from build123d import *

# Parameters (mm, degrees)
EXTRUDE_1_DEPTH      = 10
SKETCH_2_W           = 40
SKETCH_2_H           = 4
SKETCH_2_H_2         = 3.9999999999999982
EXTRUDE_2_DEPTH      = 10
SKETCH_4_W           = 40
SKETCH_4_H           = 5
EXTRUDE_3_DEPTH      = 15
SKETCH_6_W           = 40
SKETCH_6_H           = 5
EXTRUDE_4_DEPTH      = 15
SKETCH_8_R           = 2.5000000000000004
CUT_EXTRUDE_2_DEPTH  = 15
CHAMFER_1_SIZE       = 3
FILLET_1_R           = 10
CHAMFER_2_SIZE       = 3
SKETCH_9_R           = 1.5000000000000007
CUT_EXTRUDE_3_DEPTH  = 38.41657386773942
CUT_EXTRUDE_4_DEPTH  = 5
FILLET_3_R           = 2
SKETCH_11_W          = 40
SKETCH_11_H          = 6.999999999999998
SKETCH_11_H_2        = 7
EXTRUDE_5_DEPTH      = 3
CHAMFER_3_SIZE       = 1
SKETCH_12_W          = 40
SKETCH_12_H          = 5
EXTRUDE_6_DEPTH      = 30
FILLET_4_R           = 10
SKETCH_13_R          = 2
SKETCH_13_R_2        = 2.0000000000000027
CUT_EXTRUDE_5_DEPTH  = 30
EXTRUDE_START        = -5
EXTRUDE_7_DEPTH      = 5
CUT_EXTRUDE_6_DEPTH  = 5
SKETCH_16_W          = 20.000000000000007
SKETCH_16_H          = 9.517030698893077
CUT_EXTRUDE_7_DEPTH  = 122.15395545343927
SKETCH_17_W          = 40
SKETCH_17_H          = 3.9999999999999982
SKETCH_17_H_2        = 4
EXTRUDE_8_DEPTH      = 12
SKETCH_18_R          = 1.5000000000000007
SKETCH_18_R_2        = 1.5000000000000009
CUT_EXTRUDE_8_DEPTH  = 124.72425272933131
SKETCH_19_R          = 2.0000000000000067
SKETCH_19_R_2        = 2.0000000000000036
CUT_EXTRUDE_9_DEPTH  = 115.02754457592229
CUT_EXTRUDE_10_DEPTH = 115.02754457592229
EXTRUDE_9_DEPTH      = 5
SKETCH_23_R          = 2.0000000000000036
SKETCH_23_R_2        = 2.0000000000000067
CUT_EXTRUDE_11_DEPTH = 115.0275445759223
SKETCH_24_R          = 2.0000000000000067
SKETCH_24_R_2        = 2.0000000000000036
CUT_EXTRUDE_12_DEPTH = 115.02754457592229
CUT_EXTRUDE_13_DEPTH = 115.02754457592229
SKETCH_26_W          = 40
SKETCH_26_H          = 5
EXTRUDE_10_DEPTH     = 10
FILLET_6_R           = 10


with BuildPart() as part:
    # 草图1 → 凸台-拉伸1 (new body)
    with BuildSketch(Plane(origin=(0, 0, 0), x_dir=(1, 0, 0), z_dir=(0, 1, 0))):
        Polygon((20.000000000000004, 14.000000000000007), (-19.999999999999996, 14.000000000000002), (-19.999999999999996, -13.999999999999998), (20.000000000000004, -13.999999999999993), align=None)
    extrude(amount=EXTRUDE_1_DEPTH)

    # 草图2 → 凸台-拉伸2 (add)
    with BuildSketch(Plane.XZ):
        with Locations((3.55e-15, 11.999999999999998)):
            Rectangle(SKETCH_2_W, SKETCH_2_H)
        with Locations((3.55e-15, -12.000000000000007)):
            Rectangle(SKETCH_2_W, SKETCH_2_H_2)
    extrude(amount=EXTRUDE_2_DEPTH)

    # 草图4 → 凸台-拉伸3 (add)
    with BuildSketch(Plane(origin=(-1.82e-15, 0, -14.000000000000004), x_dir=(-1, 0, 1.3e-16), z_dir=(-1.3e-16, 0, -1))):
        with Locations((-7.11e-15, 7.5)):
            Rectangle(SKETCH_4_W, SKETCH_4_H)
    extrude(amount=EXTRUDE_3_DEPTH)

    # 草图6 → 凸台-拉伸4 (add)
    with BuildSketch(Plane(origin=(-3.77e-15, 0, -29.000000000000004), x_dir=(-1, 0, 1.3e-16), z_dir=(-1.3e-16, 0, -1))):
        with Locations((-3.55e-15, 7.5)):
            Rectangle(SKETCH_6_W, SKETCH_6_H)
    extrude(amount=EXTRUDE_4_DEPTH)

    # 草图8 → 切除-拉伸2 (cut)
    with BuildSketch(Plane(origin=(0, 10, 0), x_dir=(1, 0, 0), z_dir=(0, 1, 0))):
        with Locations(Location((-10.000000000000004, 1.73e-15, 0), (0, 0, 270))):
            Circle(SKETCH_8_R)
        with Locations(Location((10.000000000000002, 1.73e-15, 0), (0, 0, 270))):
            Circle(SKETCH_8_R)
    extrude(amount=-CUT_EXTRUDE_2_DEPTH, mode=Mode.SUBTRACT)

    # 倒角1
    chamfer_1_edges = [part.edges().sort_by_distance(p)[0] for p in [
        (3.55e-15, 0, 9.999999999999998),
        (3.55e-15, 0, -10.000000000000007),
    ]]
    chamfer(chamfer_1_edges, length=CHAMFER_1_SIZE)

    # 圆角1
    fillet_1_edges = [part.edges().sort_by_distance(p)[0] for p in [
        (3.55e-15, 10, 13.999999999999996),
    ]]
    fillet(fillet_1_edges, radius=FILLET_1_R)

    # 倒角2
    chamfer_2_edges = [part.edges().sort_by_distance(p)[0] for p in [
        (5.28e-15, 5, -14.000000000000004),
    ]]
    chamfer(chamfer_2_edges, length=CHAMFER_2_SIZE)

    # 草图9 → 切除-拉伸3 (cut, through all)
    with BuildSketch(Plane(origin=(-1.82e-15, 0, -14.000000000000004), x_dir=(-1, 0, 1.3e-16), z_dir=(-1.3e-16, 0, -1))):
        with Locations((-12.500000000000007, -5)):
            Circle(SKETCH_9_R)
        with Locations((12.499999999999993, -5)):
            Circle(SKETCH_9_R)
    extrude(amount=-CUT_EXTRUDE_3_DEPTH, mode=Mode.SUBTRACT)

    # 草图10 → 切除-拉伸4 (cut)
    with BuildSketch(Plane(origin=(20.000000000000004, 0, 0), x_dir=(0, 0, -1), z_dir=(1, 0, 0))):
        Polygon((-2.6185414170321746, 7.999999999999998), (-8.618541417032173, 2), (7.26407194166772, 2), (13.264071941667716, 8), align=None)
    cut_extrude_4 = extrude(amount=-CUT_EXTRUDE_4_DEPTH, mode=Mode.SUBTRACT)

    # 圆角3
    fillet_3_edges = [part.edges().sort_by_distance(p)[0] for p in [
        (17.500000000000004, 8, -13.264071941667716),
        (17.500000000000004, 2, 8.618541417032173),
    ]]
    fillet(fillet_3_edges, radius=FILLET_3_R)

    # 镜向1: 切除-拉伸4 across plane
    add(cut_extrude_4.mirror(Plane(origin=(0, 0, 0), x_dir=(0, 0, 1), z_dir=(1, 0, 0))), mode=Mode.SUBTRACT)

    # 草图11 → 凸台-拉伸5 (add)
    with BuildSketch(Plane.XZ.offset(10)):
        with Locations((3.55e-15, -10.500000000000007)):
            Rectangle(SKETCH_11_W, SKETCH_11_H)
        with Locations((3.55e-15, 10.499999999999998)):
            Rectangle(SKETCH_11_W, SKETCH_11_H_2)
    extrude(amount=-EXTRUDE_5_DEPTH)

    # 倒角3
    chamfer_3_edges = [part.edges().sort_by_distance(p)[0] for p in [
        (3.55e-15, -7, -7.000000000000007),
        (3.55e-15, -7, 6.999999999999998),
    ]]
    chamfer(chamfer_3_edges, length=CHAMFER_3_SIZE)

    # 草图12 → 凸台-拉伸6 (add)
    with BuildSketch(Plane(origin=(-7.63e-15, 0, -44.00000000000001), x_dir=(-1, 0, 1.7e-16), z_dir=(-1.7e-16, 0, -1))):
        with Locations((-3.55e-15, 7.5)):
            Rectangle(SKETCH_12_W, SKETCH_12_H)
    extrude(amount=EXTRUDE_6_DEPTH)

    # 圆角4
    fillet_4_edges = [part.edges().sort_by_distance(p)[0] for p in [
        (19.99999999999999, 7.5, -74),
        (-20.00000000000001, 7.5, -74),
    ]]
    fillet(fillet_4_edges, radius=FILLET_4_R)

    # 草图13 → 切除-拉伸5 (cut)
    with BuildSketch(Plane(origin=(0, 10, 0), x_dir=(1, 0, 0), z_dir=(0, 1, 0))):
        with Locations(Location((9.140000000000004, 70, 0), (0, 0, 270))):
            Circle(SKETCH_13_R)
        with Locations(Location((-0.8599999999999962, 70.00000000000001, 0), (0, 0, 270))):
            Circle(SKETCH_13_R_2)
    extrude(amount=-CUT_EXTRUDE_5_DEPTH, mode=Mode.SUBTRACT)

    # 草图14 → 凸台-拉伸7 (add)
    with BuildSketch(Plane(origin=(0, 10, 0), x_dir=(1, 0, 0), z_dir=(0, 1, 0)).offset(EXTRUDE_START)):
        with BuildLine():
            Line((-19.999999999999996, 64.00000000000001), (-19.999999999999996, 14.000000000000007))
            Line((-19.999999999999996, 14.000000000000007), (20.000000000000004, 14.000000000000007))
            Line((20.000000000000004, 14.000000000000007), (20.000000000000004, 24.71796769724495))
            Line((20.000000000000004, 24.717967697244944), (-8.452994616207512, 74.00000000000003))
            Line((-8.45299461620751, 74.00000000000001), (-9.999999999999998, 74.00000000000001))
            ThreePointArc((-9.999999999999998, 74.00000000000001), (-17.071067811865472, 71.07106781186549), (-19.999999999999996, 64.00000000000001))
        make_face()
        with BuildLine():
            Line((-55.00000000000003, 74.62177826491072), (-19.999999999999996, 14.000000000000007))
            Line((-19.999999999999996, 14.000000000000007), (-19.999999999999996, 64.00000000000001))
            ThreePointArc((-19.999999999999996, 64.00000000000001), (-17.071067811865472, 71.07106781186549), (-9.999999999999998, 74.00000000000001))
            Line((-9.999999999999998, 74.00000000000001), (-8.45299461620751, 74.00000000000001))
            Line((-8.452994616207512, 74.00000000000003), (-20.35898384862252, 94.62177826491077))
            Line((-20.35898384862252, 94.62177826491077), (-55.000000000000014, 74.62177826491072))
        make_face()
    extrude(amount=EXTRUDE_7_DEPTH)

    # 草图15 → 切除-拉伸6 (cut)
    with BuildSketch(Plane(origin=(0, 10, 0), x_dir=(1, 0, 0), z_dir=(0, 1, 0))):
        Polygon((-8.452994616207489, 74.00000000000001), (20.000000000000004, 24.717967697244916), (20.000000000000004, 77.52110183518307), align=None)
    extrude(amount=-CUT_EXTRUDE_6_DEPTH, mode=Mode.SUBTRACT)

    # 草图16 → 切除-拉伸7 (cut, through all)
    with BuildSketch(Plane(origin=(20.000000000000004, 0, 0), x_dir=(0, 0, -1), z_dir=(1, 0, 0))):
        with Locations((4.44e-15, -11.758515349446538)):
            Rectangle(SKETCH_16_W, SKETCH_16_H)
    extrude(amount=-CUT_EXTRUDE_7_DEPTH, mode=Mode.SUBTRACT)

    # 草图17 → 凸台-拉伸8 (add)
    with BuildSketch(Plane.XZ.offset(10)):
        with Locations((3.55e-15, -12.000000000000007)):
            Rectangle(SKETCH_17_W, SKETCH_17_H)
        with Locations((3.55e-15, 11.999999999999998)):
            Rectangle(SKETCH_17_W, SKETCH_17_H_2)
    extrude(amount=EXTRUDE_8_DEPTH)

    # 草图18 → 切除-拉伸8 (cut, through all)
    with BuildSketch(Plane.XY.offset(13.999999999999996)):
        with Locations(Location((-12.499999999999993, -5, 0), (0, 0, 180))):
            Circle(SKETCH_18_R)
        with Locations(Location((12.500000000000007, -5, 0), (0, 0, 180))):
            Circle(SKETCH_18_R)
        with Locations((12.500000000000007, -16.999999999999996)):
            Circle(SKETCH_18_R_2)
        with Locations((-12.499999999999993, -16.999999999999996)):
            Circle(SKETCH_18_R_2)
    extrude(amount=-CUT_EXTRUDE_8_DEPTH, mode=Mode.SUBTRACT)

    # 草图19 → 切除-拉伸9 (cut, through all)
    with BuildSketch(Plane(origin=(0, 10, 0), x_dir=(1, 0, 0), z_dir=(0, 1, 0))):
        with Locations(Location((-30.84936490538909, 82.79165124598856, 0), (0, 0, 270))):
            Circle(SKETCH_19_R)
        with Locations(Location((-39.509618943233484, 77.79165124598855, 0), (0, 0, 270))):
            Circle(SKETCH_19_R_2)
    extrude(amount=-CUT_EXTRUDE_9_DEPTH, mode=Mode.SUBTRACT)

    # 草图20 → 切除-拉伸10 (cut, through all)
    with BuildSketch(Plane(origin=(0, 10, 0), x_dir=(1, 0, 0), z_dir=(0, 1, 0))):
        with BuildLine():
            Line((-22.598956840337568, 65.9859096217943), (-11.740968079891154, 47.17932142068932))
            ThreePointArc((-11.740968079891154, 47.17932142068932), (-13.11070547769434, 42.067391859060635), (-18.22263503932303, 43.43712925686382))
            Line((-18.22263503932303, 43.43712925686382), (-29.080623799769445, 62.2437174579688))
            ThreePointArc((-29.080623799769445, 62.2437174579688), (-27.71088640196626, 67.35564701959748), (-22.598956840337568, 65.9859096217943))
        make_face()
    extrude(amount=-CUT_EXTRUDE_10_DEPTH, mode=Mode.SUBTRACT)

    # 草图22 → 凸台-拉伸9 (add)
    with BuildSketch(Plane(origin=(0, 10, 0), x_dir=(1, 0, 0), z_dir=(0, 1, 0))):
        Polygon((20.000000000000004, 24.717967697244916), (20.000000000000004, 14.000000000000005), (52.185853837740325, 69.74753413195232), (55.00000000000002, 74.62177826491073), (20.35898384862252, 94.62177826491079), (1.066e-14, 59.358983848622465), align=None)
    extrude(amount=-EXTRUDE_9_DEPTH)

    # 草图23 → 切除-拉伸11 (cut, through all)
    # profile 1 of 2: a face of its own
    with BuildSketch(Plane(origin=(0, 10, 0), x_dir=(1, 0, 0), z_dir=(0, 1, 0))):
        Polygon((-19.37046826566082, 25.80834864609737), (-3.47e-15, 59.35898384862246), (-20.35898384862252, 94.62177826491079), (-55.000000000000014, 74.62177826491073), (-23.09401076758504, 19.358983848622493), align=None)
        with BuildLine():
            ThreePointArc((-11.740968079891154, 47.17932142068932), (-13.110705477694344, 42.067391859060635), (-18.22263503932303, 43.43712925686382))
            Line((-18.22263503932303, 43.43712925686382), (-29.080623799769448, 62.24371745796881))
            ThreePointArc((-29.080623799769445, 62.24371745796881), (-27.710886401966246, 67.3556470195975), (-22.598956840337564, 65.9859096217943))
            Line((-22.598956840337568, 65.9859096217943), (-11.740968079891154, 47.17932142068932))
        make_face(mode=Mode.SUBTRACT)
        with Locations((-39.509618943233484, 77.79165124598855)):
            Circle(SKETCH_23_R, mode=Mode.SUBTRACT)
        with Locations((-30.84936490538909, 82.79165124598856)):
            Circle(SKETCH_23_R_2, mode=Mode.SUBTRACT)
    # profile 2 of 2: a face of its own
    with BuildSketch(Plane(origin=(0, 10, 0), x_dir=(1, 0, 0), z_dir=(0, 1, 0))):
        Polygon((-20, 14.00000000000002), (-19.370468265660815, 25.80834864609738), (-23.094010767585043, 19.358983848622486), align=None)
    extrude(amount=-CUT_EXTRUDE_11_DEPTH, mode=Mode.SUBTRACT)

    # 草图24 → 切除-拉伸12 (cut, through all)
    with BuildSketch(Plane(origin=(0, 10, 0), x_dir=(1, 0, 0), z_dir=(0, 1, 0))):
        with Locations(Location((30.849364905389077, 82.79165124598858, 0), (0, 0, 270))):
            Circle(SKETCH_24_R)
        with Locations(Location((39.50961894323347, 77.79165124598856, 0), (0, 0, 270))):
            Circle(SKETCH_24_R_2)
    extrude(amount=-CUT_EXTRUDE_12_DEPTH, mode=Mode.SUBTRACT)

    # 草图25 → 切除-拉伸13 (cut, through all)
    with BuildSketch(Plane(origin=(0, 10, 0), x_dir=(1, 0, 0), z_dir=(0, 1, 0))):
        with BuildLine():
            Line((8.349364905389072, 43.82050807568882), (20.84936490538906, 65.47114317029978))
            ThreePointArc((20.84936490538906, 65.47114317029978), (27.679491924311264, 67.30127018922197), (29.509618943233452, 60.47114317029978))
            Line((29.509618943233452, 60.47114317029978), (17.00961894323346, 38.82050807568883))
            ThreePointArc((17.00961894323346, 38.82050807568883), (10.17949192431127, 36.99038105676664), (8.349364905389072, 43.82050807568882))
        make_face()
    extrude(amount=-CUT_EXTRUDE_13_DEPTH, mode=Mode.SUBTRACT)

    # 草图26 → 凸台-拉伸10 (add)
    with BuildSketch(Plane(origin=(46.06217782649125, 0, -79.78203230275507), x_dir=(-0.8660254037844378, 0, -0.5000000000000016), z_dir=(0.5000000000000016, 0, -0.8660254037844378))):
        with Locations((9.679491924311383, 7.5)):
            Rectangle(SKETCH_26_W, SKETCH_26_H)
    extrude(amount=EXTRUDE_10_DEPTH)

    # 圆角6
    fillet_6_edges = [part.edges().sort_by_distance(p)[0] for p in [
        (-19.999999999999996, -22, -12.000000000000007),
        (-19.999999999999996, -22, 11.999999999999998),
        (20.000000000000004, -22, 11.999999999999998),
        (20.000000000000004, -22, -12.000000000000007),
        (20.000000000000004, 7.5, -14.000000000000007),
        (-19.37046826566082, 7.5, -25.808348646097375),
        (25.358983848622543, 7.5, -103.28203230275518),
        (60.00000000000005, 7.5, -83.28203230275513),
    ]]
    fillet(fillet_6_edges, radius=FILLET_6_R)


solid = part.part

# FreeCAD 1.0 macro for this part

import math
import FreeCAD as App
import Part
import Sketcher

V = App.Vector
Q = App.Units.Quantity


def edges_at(feature, points):
    """Names of the edges that pass closest to the given points."""
    edges = feature.Shape.Edges
    near = lambda p: min(range(len(edges)), key=lambda i: edges[i].distToShape(Part.Vertex(*p))[0])
    return sorted({f"Edge{near(p) + 1}" for p in points})

doc = App.newDocument("Part")
body = doc.addObject("PartDesign::Body", "Body")

# Sketch on XZ plane
sketch1 = body.newObject("Sketcher::SketchObject", "Sketch")
sketch1.AttachmentSupport = (doc.getObject("XZ_Plane"), [""])
sketch1.MapMode = "FlatFace"
sketch1.addGeometry([
    Part.LineSegment(V(20, -14, 0), V(-20, -14, 0)),
    Part.LineSegment(V(-20, -14, 0), V(-20, 14, 0)),
    Part.LineSegment(V(-20, 14, 0), V(20, 14, 0)),
    Part.LineSegment(V(20, 14, 0), V(20, -14, 0)),
], False)
sketch1.addConstraint([
    Sketcher.Constraint("Coincident", 0, 2, 1, 1),
    Sketcher.Constraint("Coincident", 1, 2, 2, 1),
    Sketcher.Constraint("Coincident", 2, 2, 3, 1),
    Sketcher.Constraint("Coincident", 3, 2, 0, 1),
    Sketcher.Constraint("Horizontal", 0),
    Sketcher.Constraint("Vertical", 1),
    Sketcher.Constraint("Horizontal", 2),
    Sketcher.Constraint("Vertical", 3),
    Sketcher.Constraint("Symmetric", 0, 2, 2, 2, -1, 1),
    Sketcher.Constraint("DistanceX", 0, 2, 0, 1, 40.0),
    Sketcher.Constraint("DistanceY", 1, 1, 1, 2, 28.0),
])
pad1 = body.newObject("PartDesign::Pad", "Pad")
pad1.Profile = sketch1
pad1.Length = 10
pad1.Reversed = True

# Sketch on XZ plane
sketch2 = body.newObject("Sketcher::SketchObject", "Sketch001")
sketch2.AttachmentSupport = (doc.getObject("XZ_Plane"), [""])
sketch2.MapMode = "FlatFace"
sketch2.addGeometry([
    Part.LineSegment(V(-20, 14, 0), V(-20, 10, 0)),  # 0
    Part.LineSegment(V(-20, 10, 0), V(20, 10, 0)),  # 1
    Part.LineSegment(V(20, 10, 0), V(20, 14, 0)),  # 2
    Part.LineSegment(V(20, 14, 0), V(-20, 14, 0)),  # 3
    Part.LineSegment(V(-20, -10, 0), V(-20, -14, 0)),  # 4
    Part.LineSegment(V(-20, -14, 0), V(20, -14, 0)),  # 5
    Part.LineSegment(V(20, -14, 0), V(20, -10, 0)),  # 6
    Part.LineSegment(V(20, -10, 0), V(-20, -10, 0)),  # 7
], False)
sketch2.addConstraint([
    Sketcher.Constraint("Coincident", 0, 2, 1, 1),
    Sketcher.Constraint("Coincident", 1, 2, 2, 1),
    Sketcher.Constraint("Coincident", 2, 2, 3, 1),
    Sketcher.Constraint("Coincident", 3, 2, 0, 1),
    Sketcher.Constraint("Coincident", 4, 2, 5, 1),
    Sketcher.Constraint("Coincident", 5, 2, 6, 1),
    Sketcher.Constraint("Coincident", 6, 2, 7, 1),
    Sketcher.Constraint("Coincident", 7, 2, 4, 1),
    Sketcher.Constraint("Vertical", 0),
    Sketcher.Constraint("Horizontal", 1),
    Sketcher.Constraint("Vertical", 2),
    Sketcher.Constraint("Horizontal", 3),
    Sketcher.Constraint("Vertical", 4),
    Sketcher.Constraint("Horizontal", 5),
    Sketcher.Constraint("Vertical", 6),
    Sketcher.Constraint("Horizontal", 7),
    Sketcher.Constraint("Symmetric", 2, 2, 4, 2, -1, 1),
    Sketcher.Constraint("Symmetric", 0, 2, 6, 2, -1, 1),
    Sketcher.Constraint("Vertical", 3, 2, 4, 2),
    Sketcher.Constraint("DistanceX", 1, 1, 1, 2, 40.0),
    Sketcher.Constraint("DistanceY", 0, 2, 0, 1, 4.0),
    Sketcher.Constraint("DistanceY", -1, 1, 0, 2, 10.0),
])
pad2 = body.newObject("PartDesign::Pad", "Pad001")
pad2.Profile = sketch2
pad2.Length = 10

# Sketch on XY plane
sketch3 = body.newObject("Sketcher::SketchObject", "Sketch002")
sketch3.AttachmentSupport = (doc.getObject("XY_Plane"), [""])
sketch3.MapMode = "FlatFace"
sketch3.AttachmentOffset = App.Placement(V(0, 0, -14), App.Rotation())
sketch3.addGeometry([
    Part.LineSegment(V(20, 10, 0), V(20, 5, 0)),
    Part.LineSegment(V(20, 5, 0), V(-20, 5, 0)),
    Part.LineSegment(V(-20, 5, 0), V(-20, 10, 0)),
    Part.LineSegment(V(-20, 10, 0), V(20, 10, 0)),
], False)
sketch3.addConstraint([
    Sketcher.Constraint("Coincident", 0, 2, 1, 1),
    Sketcher.Constraint("Coincident", 1, 2, 2, 1),
    Sketcher.Constraint("Coincident", 2, 2, 3, 1),
    Sketcher.Constraint("Coincident", 3, 2, 0, 1),
    Sketcher.Constraint("Vertical", 0),
    Sketcher.Constraint("Horizontal", 1),
    Sketcher.Constraint("Vertical", 2),
    Sketcher.Constraint("Horizontal", 3),
    Sketcher.Constraint("DistanceX", 1, 2, 1, 1, 40.0),
    Sketcher.Constraint("DistanceY", 0, 2, 0, 1, 5.0),
    Sketcher.Constraint("DistanceX", -1, 1, 0, 2, 20.0),
    Sketcher.Constraint("DistanceY", -1, 1, 0, 2, 5.0),
])
pad3 = body.newObject("PartDesign::Pad", "Pad002")
pad3.Profile = sketch3
pad3.Length = 15
pad3.Reversed = True

# Sketch on XY plane
sketch4 = body.newObject("Sketcher::SketchObject", "Sketch003")
sketch4.AttachmentSupport = (doc.getObject("XY_Plane"), [""])
sketch4.MapMode = "FlatFace"
sketch4.AttachmentOffset = App.Placement(V(0, 0, -29), App.Rotation())
sketch4.addGeometry([
    Part.LineSegment(V(20, 10, 0), V(20, 5, 0)),
    Part.LineSegment(V(20, 5, 0), V(-20, 5, 0)),
    Part.LineSegment(V(-20, 5, 0), V(-20, 10, 0)),
    Part.LineSegment(V(-20, 10, 0), V(20, 10, 0)),
], False)
sketch4.addConstraint([
    Sketcher.Constraint("Coincident", 0, 2, 1, 1),
    Sketcher.Constraint("Coincident", 1, 2, 2, 1),
    Sketcher.Constraint("Coincident", 2, 2, 3, 1),
    Sketcher.Constraint("Coincident", 3, 2, 0, 1),
    Sketcher.Constraint("Vertical", 0),
    Sketcher.Constraint("Horizontal", 1),
    Sketcher.Constraint("Vertical", 2),
    Sketcher.Constraint("Horizontal", 3),
    Sketcher.Constraint("DistanceX", 1, 2, 1, 1, 40.0),
    Sketcher.Constraint("DistanceY", 0, 2, 0, 1, 5.0),
    Sketcher.Constraint("DistanceX", -1, 1, 0, 2, 20.0),
    Sketcher.Constraint("DistanceY", -1, 1, 0, 2, 5.0),
])
pad4 = body.newObject("PartDesign::Pad", "Pad003")
pad4.Profile = sketch4
pad4.Length = 15
pad4.Reversed = True

# Sketch on XZ plane
sketch5 = body.newObject("Sketcher::SketchObject", "Sketch004")
sketch5.AttachmentSupport = (doc.getObject("XZ_Plane"), [""])
sketch5.MapMode = "FlatFace"
sketch5.AttachmentOffset = App.Placement(V(0, 0, -10), App.Rotation())
sketch5.addGeometry([
    Part.Circle(V(-10, 0, 0), V(0, 0, 1), 2.5),
    Part.Circle(V(10, 0, 0), V(0, 0, 1), 2.5),
], False)
sketch5.addConstraint([
    Sketcher.Constraint("Equal", 0, 1),
    Sketcher.Constraint("Symmetric", 0, 3, 1, 3, -1, 1),
    Sketcher.Constraint("PointOnObject", 0, 3, -1),
    Sketcher.Constraint("Diameter", 0, 5.0),
    Sketcher.Constraint("DistanceX", 0, 3, -1, 1, 10.0),
])
pocket1 = body.newObject("PartDesign::Pocket", "Pocket")
pocket1.Profile = sketch5
pocket1.Length = 15
pocket1.Reversed = True
doc.recompute()

chamfer = body.newObject("PartDesign::Chamfer", "Chamfer")
chamfer.Base = (pocket1, edges_at(pocket1, [(0, 0, 10), (0, 0, -10)]))
chamfer.Size = 3
doc.recompute()

fillet = body.newObject("PartDesign::Fillet", "Fillet")
fillet.Base = (chamfer, edges_at(chamfer, [(0, 10, 14)]))
fillet.Radius = 10
doc.recompute()

chamfer2 = body.newObject("PartDesign::Chamfer", "Chamfer001")
chamfer2.Base = (fillet, edges_at(fillet, [(0, 5, -14)]))
chamfer2.Size = 3

# Sketch on XY plane
sketch6 = body.newObject("Sketcher::SketchObject", "Sketch005")
sketch6.AttachmentSupport = (doc.getObject("XY_Plane"), [""])
sketch6.MapMode = "FlatFace"
sketch6.AttachmentOffset = App.Placement(V(0, 0, -14), App.Rotation())
sketch6.addGeometry([
    Part.Circle(V(12.5, -5, 0), V(0, 0, 1), 1.5),
    Part.Circle(V(-12.5, -5, 0), V(0, 0, 1), 1.5),
], False)
sketch6.addConstraint([
    Sketcher.Constraint("Equal", 0, 1),
    Sketcher.Constraint("Symmetric", 0, 3, 1, 3, -2),
    Sketcher.Constraint("Diameter", 0, 3.0),
    Sketcher.Constraint("DistanceY", 0, 3, -1, 1, 5.0),
    Sketcher.Constraint("DistanceX", 1, 3, 0, 3, 25.0),
])
pocket2 = body.newObject("PartDesign::Pocket", "Pocket001")
pocket2.Profile = sketch6
pocket2.Type = "ThroughAll"
pocket2.Reversed = True

# Sketch on YZ plane
sketch7 = body.newObject("Sketcher::SketchObject", "Sketch006")
sketch7.AttachmentSupport = (doc.getObject("YZ_Plane"), [""])
sketch7.MapMode = "FlatFace"
sketch7.AttachmentOffset = App.Placement(V(0, 0, 20), App.Rotation())
sketch7.addGeometry([
    Part.LineSegment(V(8, 3, 0), V(2, 9, 0)),
    Part.LineSegment(V(2, 9, 0), V(2, -7, 0)),
    Part.LineSegment(V(2, -7, 0), V(8, -13, 0)),
    Part.LineSegment(V(8, -13, 0), V(8, 3, 0)),
], False)
sketch7.addConstraint([
    Sketcher.Constraint("Coincident", 0, 2, 1, 1),
    Sketcher.Constraint("Coincident", 1, 2, 2, 1),
    Sketcher.Constraint("Coincident", 2, 2, 3, 1),
    Sketcher.Constraint("Coincident", 3, 2, 0, 1),
    Sketcher.Constraint("Vertical", 1),
    Sketcher.Constraint("Vertical", 3),
    Sketcher.Constraint("Parallel", 0, 2),
    Sketcher.Constraint("Angle", 0, Q("135 deg")),
    Sketcher.Constraint("DistanceX", -1, 1, 0, 2, 2.0),
    Sketcher.Constraint("DistanceX", -1, 1, 2, 2, 8.0),
    Sketcher.Constraint("DistanceY", 1, 2, 1, 1, 15.882613),
    Sketcher.Constraint("DistanceY", -1, 1, 0, 2, 8.618541),
])
pocket3 = body.newObject("PartDesign::Pocket", "Pocket002")
pocket3.Profile = sketch7
pocket3.Length = 5
doc.recompute()

fillet2 = body.newObject("PartDesign::Fillet", "Fillet001")
fillet2.Base = (pocket3, edges_at(pocket3, [(17.5, 8, -13.264), (17.5, 2, 8.619)]))
fillet2.Radius = 2
doc.recompute()

mirrored = body.newObject("PartDesign::Mirrored", "Mirrored")
mirrored.Originals = [pocket3]
mirrored.MirrorPlane = (doc.getObject("YZ_Plane"), [""])
body.Tip = mirrored

# Sketch on XZ plane
sketch8 = body.newObject("Sketcher::SketchObject", "Sketch007")
sketch8.AttachmentSupport = (doc.getObject("XZ_Plane"), [""])
sketch8.MapMode = "FlatFace"
sketch8.AttachmentOffset = App.Placement(V(0, 0, 10), App.Rotation())
sketch8.addGeometry([
    Part.LineSegment(V(-20, -7, 0), V(-20, -14, 0)),  # 0
    Part.LineSegment(V(-20, -14, 0), V(20, -14, 0)),  # 1
    Part.LineSegment(V(20, -14, 0), V(20, -7, 0)),  # 2
    Part.LineSegment(V(20, -7, 0), V(-20, -7, 0)),  # 3
    Part.LineSegment(V(-20, 14, 0), V(-20, 7, 0)),  # 4
    Part.LineSegment(V(-20, 7, 0), V(20, 7, 0)),  # 5
    Part.LineSegment(V(20, 7, 0), V(20, 14, 0)),  # 6
    Part.LineSegment(V(20, 14, 0), V(-20, 14, 0)),  # 7
], False)
sketch8.addConstraint([
    Sketcher.Constraint("Coincident", 0, 2, 1, 1),
    Sketcher.Constraint("Coincident", 1, 2, 2, 1),
    Sketcher.Constraint("Coincident", 2, 2, 3, 1),
    Sketcher.Constraint("Coincident", 3, 2, 0, 1),
    Sketcher.Constraint("Coincident", 4, 2, 5, 1),
    Sketcher.Constraint("Coincident", 5, 2, 6, 1),
    Sketcher.Constraint("Coincident", 6, 2, 7, 1),
    Sketcher.Constraint("Coincident", 7, 2, 4, 1),
    Sketcher.Constraint("Vertical", 0),
    Sketcher.Constraint("Horizontal", 1),
    Sketcher.Constraint("Vertical", 2),
    Sketcher.Constraint("Horizontal", 3),
    Sketcher.Constraint("Vertical", 4),
    Sketcher.Constraint("Horizontal", 5),
    Sketcher.Constraint("Vertical", 6),
    Sketcher.Constraint("Horizontal", 7),
    Sketcher.Constraint("Symmetric", 2, 2, 4, 2, -1, 1),
    Sketcher.Constraint("Symmetric", 0, 2, 6, 2, -1, 1),
    Sketcher.Constraint("Vertical", 3, 2, 4, 2),
    Sketcher.Constraint("DistanceX", 1, 1, 1, 2, 40.0),
    Sketcher.Constraint("DistanceY", 0, 2, 0, 1, 7.0),
    Sketcher.Constraint("DistanceY", 0, 2, -1, 1, 14.0),
])
pad5 = body.newObject("PartDesign::Pad", "Pad004")
pad5.Profile = sketch8
pad5.Length = 3
pad5.Reversed = True
doc.recompute()

chamfer3 = body.newObject("PartDesign::Chamfer", "Chamfer002")
chamfer3.Base = (pad5, edges_at(pad5, [(0, -7, -7), (0, -7, 7)]))
chamfer3.Size = 1

# Sketch on XY plane
sketch9 = body.newObject("Sketcher::SketchObject", "Sketch008")
sketch9.AttachmentSupport = (doc.getObject("XY_Plane"), [""])
sketch9.MapMode = "FlatFace"
sketch9.AttachmentOffset = App.Placement(V(0, 0, -44), App.Rotation())
sketch9.addGeometry([
    Part.LineSegment(V(20, 10, 0), V(20, 5, 0)),
    Part.LineSegment(V(20, 5, 0), V(-20, 5, 0)),
    Part.LineSegment(V(-20, 5, 0), V(-20, 10, 0)),
    Part.LineSegment(V(-20, 10, 0), V(20, 10, 0)),
], False)
sketch9.addConstraint([
    Sketcher.Constraint("Coincident", 0, 2, 1, 1),
    Sketcher.Constraint("Coincident", 1, 2, 2, 1),
    Sketcher.Constraint("Coincident", 2, 2, 3, 1),
    Sketcher.Constraint("Coincident", 3, 2, 0, 1),
    Sketcher.Constraint("Vertical", 0),
    Sketcher.Constraint("Horizontal", 1),
    Sketcher.Constraint("Vertical", 2),
    Sketcher.Constraint("Horizontal", 3),
    Sketcher.Constraint("DistanceX", 1, 2, 1, 1, 40.0),
    Sketcher.Constraint("DistanceY", 0, 2, 0, 1, 5.0),
    Sketcher.Constraint("DistanceX", -1, 1, 0, 2, 20.0),
    Sketcher.Constraint("DistanceY", -1, 1, 0, 2, 5.0),
])
pad6 = body.newObject("PartDesign::Pad", "Pad005")
pad6.Profile = sketch9
pad6.Length = 30
pad6.Reversed = True
doc.recompute()

fillet3 = body.newObject("PartDesign::Fillet", "Fillet002")
fillet3.Base = (pad6, edges_at(pad6, [(20, 7.5, -74), (-20, 7.5, -74)]))
fillet3.Radius = 10

# Sketch on XZ plane
sketch10 = body.newObject("Sketcher::SketchObject", "Sketch009")
sketch10.AttachmentSupport = (doc.getObject("XZ_Plane"), [""])
sketch10.MapMode = "FlatFace"
sketch10.AttachmentOffset = App.Placement(V(0, 0, -10), App.Rotation())
sketch10.addGeometry([
    Part.Circle(V(9.1, -70, 0), V(0, 0, 1), 2),
    Part.Circle(V(-0.9, -70, 0), V(0, 0, 1), 2),
], False)
sketch10.addConstraint([
    Sketcher.Constraint("Equal", 0, 1),
    Sketcher.Constraint("Horizontal", 0, 3, 1, 3),
    Sketcher.Constraint("Diameter", 0, 4.0),
    Sketcher.Constraint("DistanceY", 0, 3, -1, 1, 70.0),
    Sketcher.Constraint("DistanceX", 1, 3, 0, 3, 10.0),
    Sketcher.Constraint("DistanceX", -1, 1, 0, 3, 9.14),
])
pocket4 = body.newObject("PartDesign::Pocket", "Pocket003")
pocket4.Profile = sketch10
pocket4.Length = 30
pocket4.Reversed = True

# Sketch on XZ plane
sketch11 = body.newObject("Sketcher::SketchObject", "Sketch010")
sketch11.AttachmentSupport = (doc.getObject("XZ_Plane"), [""])
sketch11.MapMode = "FlatFace"
sketch11.AttachmentOffset = App.Placement(V(0, 0, -5), App.Rotation())
sketch11.addGeometry([
    Part.LineSegment(V(-20, -14, 0), V(20, -14, 0)),  # 0
    Part.LineSegment(V(20, -14, 0), V(20, -25, 0)),  # 1
    Part.LineSegment(V(20, -25, 0), V(-20, -95, 0)),  # 2
    Part.LineSegment(V(-20, -95, 0), V(-55, -75, 0)),  # 3
    Part.LineSegment(V(-55, -75, 0), V(-20, -14, 0)),  # 4
], False)
sketch11.addConstraint([
    Sketcher.Constraint("Coincident", 0, 2, 1, 1),
    Sketcher.Constraint("Coincident", 1, 2, 2, 1),
    Sketcher.Constraint("Coincident", 2, 2, 3, 1),
    Sketcher.Constraint("Coincident", 3, 2, 4, 1),
    Sketcher.Constraint("Coincident", 4, 2, 0, 1),
    Sketcher.Constraint("Horizontal", 0),
    Sketcher.Constraint("Vertical", 1),
    Sketcher.Constraint("Perpendicular", 2, 3),
    Sketcher.Constraint("Perpendicular", 3, 4),
    Sketcher.Constraint("DistanceX", 0, 1, 0, 2, 40.0),
    Sketcher.Constraint("Angle", 2, Q("-120 deg")),
    Sketcher.Constraint("Distance", 3, 40.0),
    Sketcher.Constraint("Distance", 4, 70.0),
    Sketcher.Constraint("DistanceX", -1, 1, 0, 2, 20.0),
    Sketcher.Constraint("DistanceY", 0, 2, -1, 1, 14.0),
])
pad7 = body.newObject("PartDesign::Pad", "Pad006")
pad7.Profile = sketch11
pad7.Length = 5
pad7.Reversed = True

# Sketch on XZ plane
sketch12 = body.newObject("Sketcher::SketchObject", "Sketch011")
sketch12.AttachmentSupport = (doc.getObject("XZ_Plane"), [""])
sketch12.MapMode = "FlatFace"
sketch12.AttachmentOffset = App.Placement(V(0, 0, -10), App.Rotation())
sketch12.addGeometry([
    Part.LineSegment(V(-8, -74, 0), V(20, -25, 0)),
    Part.LineSegment(V(20, -25, 0), V(20, -78, 0)),
    Part.LineSegment(V(20, -78, 0), V(-8, -74, 0)),
], False)
sketch12.addConstraint([
    Sketcher.Constraint("Coincident", 0, 2, 1, 1),
    Sketcher.Constraint("Coincident", 1, 2, 2, 1),
    Sketcher.Constraint("Coincident", 2, 2, 0, 1),
    Sketcher.Constraint("Vertical", 1),
    Sketcher.Constraint("Angle", 0, Q("60 deg")),
    Sketcher.Constraint("DistanceX", -1, 1, 0, 2, 20.0),
    Sketcher.Constraint("DistanceY", 2, 2, -1, 1, 74.0),
    Sketcher.Constraint("DistanceY", 1, 2, -1, 1, 77.521102),
    Sketcher.Constraint("Distance", 0, 56.905989),
])
pocket5 = body.newObject("PartDesign::Pocket", "Pocket004")
pocket5.Profile = sketch12
pocket5.Length = 5
pocket5.Reversed = True

# Sketch on YZ plane
sketch13 = body.newObject("Sketcher::SketchObject", "Sketch012")
sketch13.AttachmentSupport = (doc.getObject("YZ_Plane"), [""])
sketch13.MapMode = "FlatFace"
sketch13.AttachmentOffset = App.Placement(V(0, 0, 20), App.Rotation())
sketch13.addGeometry([
    Part.LineSegment(V(-7, 10, 0), V(-17, 10, 0)),
    Part.LineSegment(V(-17, 10, 0), V(-17, -10, 0)),
    Part.LineSegment(V(-17, -10, 0), V(-7, -10, 0)),
    Part.LineSegment(V(-7, -10, 0), V(-7, 10, 0)),
], False)
sketch13.addConstraint([
    Sketcher.Constraint("Coincident", 0, 2, 1, 1),
    Sketcher.Constraint("Coincident", 1, 2, 2, 1),
    Sketcher.Constraint("Coincident", 2, 2, 3, 1),
    Sketcher.Constraint("Coincident", 3, 2, 0, 1),
    Sketcher.Constraint("Horizontal", 0),
    Sketcher.Constraint("Vertical", 1),
    Sketcher.Constraint("Horizontal", 2),
    Sketcher.Constraint("Vertical", 3),
    Sketcher.Constraint("DistanceY", 1, 2, 1, 1, 20.0),
    Sketcher.Constraint("DistanceY", -1, 1, 0, 2, 10.0),
    Sketcher.Constraint("DistanceX", 2, 2, -1, 1, 7.0),
    Sketcher.Constraint("DistanceX", 0, 2, 0, 1, 9.517031),
])
pocket6 = body.newObject("PartDesign::Pocket", "Pocket005")
pocket6.Profile = sketch13
pocket6.Type = "ThroughAll"

# Sketch on XZ plane
sketch14 = body.newObject("Sketcher::SketchObject", "Sketch013")
sketch14.AttachmentSupport = (doc.getObject("XZ_Plane"), [""])
sketch14.MapMode = "FlatFace"
sketch14.AttachmentOffset = App.Placement(V(0, 0, 10), App.Rotation())
sketch14.addGeometry([
    Part.LineSegment(V(-20, -10, 0), V(-20, -14, 0)),  # 0
    Part.LineSegment(V(-20, -14, 0), V(20, -14, 0)),  # 1
    Part.LineSegment(V(20, -14, 0), V(20, -10, 0)),  # 2
    Part.LineSegment(V(20, -10, 0), V(-20, -10, 0)),  # 3
    Part.LineSegment(V(-20, 14, 0), V(-20, 10, 0)),  # 4
    Part.LineSegment(V(-20, 10, 0), V(20, 10, 0)),  # 5
    Part.LineSegment(V(20, 10, 0), V(20, 14, 0)),  # 6
    Part.LineSegment(V(20, 14, 0), V(-20, 14, 0)),  # 7
], False)
sketch14.addConstraint([
    Sketcher.Constraint("Coincident", 0, 2, 1, 1),
    Sketcher.Constraint("Coincident", 1, 2, 2, 1),
    Sketcher.Constraint("Coincident", 2, 2, 3, 1),
    Sketcher.Constraint("Coincident", 3, 2, 0, 1),
    Sketcher.Constraint("Coincident", 4, 2, 5, 1),
    Sketcher.Constraint("Coincident", 5, 2, 6, 1),
    Sketcher.Constraint("Coincident", 6, 2, 7, 1),
    Sketcher.Constraint("Coincident", 7, 2, 4, 1),
    Sketcher.Constraint("Vertical", 0),
    Sketcher.Constraint("Horizontal", 1),
    Sketcher.Constraint("Vertical", 2),
    Sketcher.Constraint("Horizontal", 3),
    Sketcher.Constraint("Vertical", 4),
    Sketcher.Constraint("Horizontal", 5),
    Sketcher.Constraint("Vertical", 6),
    Sketcher.Constraint("Horizontal", 7),
    Sketcher.Constraint("Symmetric", 2, 2, 4, 2, -1, 1),
    Sketcher.Constraint("Symmetric", 0, 2, 6, 2, -1, 1),
    Sketcher.Constraint("Vertical", 3, 2, 4, 2),
    Sketcher.Constraint("DistanceX", 1, 1, 1, 2, 40.0),
    Sketcher.Constraint("DistanceY", 0, 2, 0, 1, 4.0),
    Sketcher.Constraint("DistanceY", 0, 2, -1, 1, 14.0),
])
pad8 = body.newObject("PartDesign::Pad", "Pad007")
pad8.Profile = sketch14
pad8.Length = 12

# Sketch on XY plane
sketch15 = body.newObject("Sketcher::SketchObject", "Sketch014")
sketch15.AttachmentSupport = (doc.getObject("XY_Plane"), [""])
sketch15.MapMode = "FlatFace"
sketch15.AttachmentOffset = App.Placement(V(0, 0, 14), App.Rotation())
sketch15.addGeometry([
    Part.Circle(V(-12.5, -5, 0), V(0, 0, 1), 1.5),
    Part.Circle(V(12.5, -5, 0), V(0, 0, 1), 1.5),
    Part.Circle(V(12.5, -17, 0), V(0, 0, 1), 1.5),
    Part.Circle(V(-12.5, -17, 0), V(0, 0, 1), 1.5),
], False)
sketch15.addConstraint([
    Sketcher.Constraint("Equal", 0, 1),
    Sketcher.Constraint("Equal", 1, 2),
    Sketcher.Constraint("Equal", 2, 3),
    Sketcher.Constraint("Symmetric", 0, 3, 1, 3, -2),
    Sketcher.Constraint("Symmetric", 2, 3, 3, 3, -2),
    Sketcher.Constraint("Vertical", 1, 3, 2, 3),
    Sketcher.Constraint("Diameter", 0, 3.0),
    Sketcher.Constraint("DistanceY", 0, 3, -1, 1, 5.0),
    Sketcher.Constraint("DistanceY", 2, 3, -1, 1, 17.0),
    Sketcher.Constraint("DistanceX", 0, 3, 1, 3, 25.0),
])
pocket7 = body.newObject("PartDesign::Pocket", "Pocket006")
pocket7.Profile = sketch15
pocket7.Type = "ThroughAll"

# Sketch on XZ plane
sketch16 = body.newObject("Sketcher::SketchObject", "Sketch015")
sketch16.AttachmentSupport = (doc.getObject("XZ_Plane"), [""])
sketch16.MapMode = "FlatFace"
sketch16.AttachmentOffset = App.Placement(V(0, 0, -10), App.Rotation())
sketch16.addGeometry([
    Part.Circle(V(-30.8, -82.8, 0), V(0, 0, 1), 2),
    Part.Circle(V(-39.5, -77.8, 0), V(0, 0, 1), 2),
], False)
sketch16.addConstraint([
    Sketcher.Constraint("Equal", 0, 1),
    Sketcher.Constraint("Diameter", 0, 4.0),
    Sketcher.Constraint("DistanceY", 0, 3, 1, 3, 5.0),
    Sketcher.Constraint("DistanceY", 0, 3, -1, 1, 82.791651),
    Sketcher.Constraint("DistanceX", 1, 3, -1, 1, 39.509619),
    Sketcher.Constraint("DistanceX", 0, 3, -1, 1, 30.849365),
])
pocket8 = body.newObject("PartDesign::Pocket", "Pocket007")
pocket8.Profile = sketch16
pocket8.Type = "ThroughAll"
pocket8.Reversed = True

# Sketch on XZ plane
sketch17 = body.newObject("Sketcher::SketchObject", "Sketch016")
sketch17.AttachmentSupport = (doc.getObject("XZ_Plane"), [""])
sketch17.MapMode = "FlatFace"
sketch17.AttachmentOffset = App.Placement(V(0, 0, -10), App.Rotation())
sketch17.addGeometry([
    Part.LineSegment(V(-11.7, -47.2, 0), V(-22.6, -66, 0)),
    Part.ArcOfCircle(Part.Circle(V(-25.8, -64.1, 0), V(0, 0, 1), 3.7), math.radians(150), math.radians(330)),
    Part.LineSegment(V(-29.1, -62.2, 0), V(-18.2, -43.4, 0)),
    Part.ArcOfCircle(Part.Circle(V(-15, -45.3, 0), V(0, 0, 1), 3.7), math.radians(-30), math.radians(150)),
], False)
sketch17.addConstraint([
    Sketcher.Constraint("Tangent", 0, 2, 1, 2),
    Sketcher.Constraint("Tangent", 1, 1, 2, 1),
    Sketcher.Constraint("Tangent", 2, 2, 3, 2),
    Sketcher.Constraint("Tangent", 3, 1, 0, 1),
    Sketcher.Constraint("Equal", 1, 3),
    Sketcher.Constraint("Angle", 0, Q("-120 deg")),
    Sketcher.Constraint("Radius", 1, 3.742192),
    Sketcher.Constraint("DistanceX", 3, 3, -1, 1, 14.981802),
    Sketcher.Constraint("DistanceX", 1, 3, -1, 1, 25.83979),
    Sketcher.Constraint("DistanceY", 0, 2, -1, 1, 65.98591),
])
pocket9 = body.newObject("PartDesign::Pocket", "Pocket008")
pocket9.Profile = sketch17
pocket9.Type = "ThroughAll"
pocket9.Reversed = True

# Sketch on XZ plane
sketch18 = body.newObject("Sketcher::SketchObject", "Sketch017")
sketch18.AttachmentSupport = (doc.getObject("XZ_Plane"), [""])
sketch18.MapMode = "FlatFace"
sketch18.AttachmentOffset = App.Placement(V(0, 0, -10), App.Rotation())
sketch18.addGeometry([
    Part.LineSegment(V(20, -25, 0), V(20, -14, 0)),  # 0
    Part.LineSegment(V(20, -14, 0), V(55, -75, 0)),  # 1
    Part.LineSegment(V(55, -75, 0), V(20, -95, 0)),  # 2
    Part.LineSegment(V(20, -95, 0), V(0, -59, 0)),  # 3
    Part.LineSegment(V(0, -59, 0), V(20, -25, 0)),  # 4
], False)
sketch18.addConstraint([
    Sketcher.Constraint("Coincident", 0, 2, 1, 1),
    Sketcher.Constraint("Coincident", 1, 2, 2, 1),
    Sketcher.Constraint("Coincident", 2, 2, 3, 1),
    Sketcher.Constraint("Coincident", 3, 2, 4, 1),
    Sketcher.Constraint("Coincident", 4, 2, 0, 1),
    Sketcher.Constraint("Vertical", 0),
    Sketcher.Constraint("PointOnObject", 3, 2, -2),
    Sketcher.Constraint("Perpendicular", 1, 2),
    Sketcher.Constraint("Perpendicular", 2, 3),
    Sketcher.Constraint("Equal", 2, 4),
    Sketcher.Constraint("Angle", 1, Q("-60 deg")),
    Sketcher.Constraint("Angle", 4, Q("60 deg")),
    Sketcher.Constraint("Distance", 1, 70.0),
    Sketcher.Constraint("Distance", 2, 40.0),
    Sketcher.Constraint("DistanceY", 0, 2, -1, 1, 14.0),
])
pad9 = body.newObject("PartDesign::Pad", "Pad008")
pad9.Profile = sketch18
pad9.Length = 5

# Sketch on XZ plane
sketch19 = body.newObject("Sketcher::SketchObject", "Sketch018")
sketch19.AttachmentSupport = (doc.getObject("XZ_Plane"), [""])
sketch19.MapMode = "FlatFace"
sketch19.AttachmentOffset = App.Placement(V(0, 0, -10), App.Rotation())
sketch19.addGeometry([
    Part.LineSegment(V(0, -59.4, 0), V(-20.4, -94.6, 0)),  # 0
    Part.LineSegment(V(-20.4, -94.6, 0), V(-55, -74.6, 0)),  # 1
    Part.LineSegment(V(-55, -74.6, 0), V(-20, -14, 0)),  # 2
    Part.LineSegment(V(-20, -14, 0), V(-19.4, -25.8, 0)),  # 3
    Part.LineSegment(V(-19.4, -25.8, 0), V(0, -59.4, 0)),  # 4
    Part.LineSegment(V(-22.6, -66, 0), V(-11.7, -47.2, 0)),  # 5
    Part.ArcOfCircle(Part.Circle(V(-15, -45.3, 0), V(0, 0, 1), 3.7), math.radians(-30), math.radians(150)),  # 6
    Part.LineSegment(V(-18.2, -43.4, 0), V(-29.1, -62.2, 0)),  # 7
    Part.ArcOfCircle(Part.Circle(V(-25.8, -64.1, 0), V(0, 0, 1), 3.7), math.radians(150), math.radians(330)),  # 8
    Part.Circle(V(-39.5, -77.8, 0), V(0, 0, 1), 2),  # 9
    Part.Circle(V(-30.8, -82.8, 0), V(0, 0, 1), 2),  # 10
], False)
sketch19.addConstraint([
    Sketcher.Constraint("Coincident", 0, 2, 1, 1),
    Sketcher.Constraint("Coincident", 1, 2, 2, 1),
    Sketcher.Constraint("Coincident", 2, 2, 3, 1),
    Sketcher.Constraint("Coincident", 3, 2, 4, 1),
    Sketcher.Constraint("Coincident", 4, 2, 0, 1),
    Sketcher.Constraint("Tangent", 5, 2, 6, 1),
    Sketcher.Constraint("Tangent", 6, 2, 7, 1),
    Sketcher.Constraint("Tangent", 7, 2, 8, 1),
    Sketcher.Constraint("Tangent", 8, 2, 5, 1),
    Sketcher.Constraint("Equal", 6, 8),
    Sketcher.Constraint("Equal", 9, 10),
    Sketcher.Constraint("PointOnObject", 4, 2, -2),
    Sketcher.Constraint("Perpendicular", 0, 1),
    Sketcher.Constraint("Perpendicular", 1, 2),
    Sketcher.Constraint("Parallel", 2, 5),
    Sketcher.Constraint("Diameter", 9, 4.0),
    Sketcher.Constraint("Angle", 0, Q("-120 deg")),
    Sketcher.Constraint("Angle", 4, Q("-60 deg")),
    Sketcher.Constraint("Distance", 1, 40.0),
    Sketcher.Constraint("Distance", 2, 70.0),
    Sketcher.Constraint("DistanceX", 1, 2, -1, 1, 55.0),
    Sketcher.Constraint("DistanceY", 2, 2, -1, 1, 14.0),
    Sketcher.Constraint("DistanceY", 10, 3, 9, 3, 5.0),
    Sketcher.Constraint("Radius", 6, 3.742192),
    Sketcher.Constraint("DistanceX", 6, 3, -1, 1, 14.981802),
    Sketcher.Constraint("DistanceX", 3, 2, 5, 2, 7.6295),
    Sketcher.Constraint("DistanceX", 8, 3, -1, 1, 25.83979),
    Sketcher.Constraint("DistanceX", 9, 3, -1, 1, 39.509619),
    Sketcher.Constraint("DistanceY", 9, 3, -1, 1, 77.791651),
    Sketcher.Constraint("DistanceY", 5, 2, -1, 1, 47.179321),
    Sketcher.Constraint("DistanceX", 10, 3, 0, 2, 10.490381),
])
pocket10 = body.newObject("PartDesign::Pocket", "Pocket009")
pocket10.Profile = sketch19
pocket10.Length = 115.027545
pocket10.Reversed = True

# Sketch on XZ plane
sketch20 = body.newObject("Sketcher::SketchObject", "Sketch019")
sketch20.AttachmentSupport = (doc.getObject("XZ_Plane"), [""])
sketch20.MapMode = "FlatFace"
sketch20.AttachmentOffset = App.Placement(V(0, 0, -10), App.Rotation())
sketch20.addGeometry([
    Part.Circle(V(30.8, -82.8, 0), V(0, 0, 1), 2),
    Part.Circle(V(39.5, -77.8, 0), V(0, 0, 1), 2),
], False)
sketch20.addConstraint([
    Sketcher.Constraint("Equal", 0, 1),
    Sketcher.Constraint("Diameter", 0, 4.0),
    Sketcher.Constraint("DistanceY", 0, 3, 1, 3, 5.0),
    Sketcher.Constraint("DistanceY", 0, 3, -1, 1, 82.791651),
    Sketcher.Constraint("DistanceX", -1, 1, 1, 3, 39.509619),
    Sketcher.Constraint("DistanceX", -1, 1, 0, 3, 30.849365),
])
pocket11 = body.newObject("PartDesign::Pocket", "Pocket010")
pocket11.Profile = sketch20
pocket11.Type = "ThroughAll"
pocket11.Reversed = True

# Sketch on XZ plane
sketch21 = body.newObject("Sketcher::SketchObject", "Sketch020")
sketch21.AttachmentSupport = (doc.getObject("XZ_Plane"), [""])
sketch21.MapMode = "FlatFace"
sketch21.AttachmentOffset = App.Placement(V(0, 0, -10), App.Rotation())
sketch21.addGeometry([
    Part.LineSegment(V(21, -65, 0), V(8, -44, 0)),
    Part.ArcOfCircle(Part.Circle(V(13, -41, 0), V(0, 0, 1), 5), math.radians(30), math.radians(210)),
    Part.LineSegment(V(17, -39, 0), V(30, -60, 0)),
    Part.ArcOfCircle(Part.Circle(V(25, -63, 0), V(0, 0, 1), 5), math.radians(-150), math.radians(30)),
], False)
sketch21.addConstraint([
    Sketcher.Constraint("Tangent", 0, 2, 1, 2),
    Sketcher.Constraint("Tangent", 1, 1, 2, 1),
    Sketcher.Constraint("Tangent", 2, 2, 3, 2),
    Sketcher.Constraint("Tangent", 3, 1, 0, 1),
    Sketcher.Constraint("Equal", 1, 3),
    Sketcher.Constraint("Radius", 1, 5.0),
    Sketcher.Constraint("Angle", 0, Q("120 deg")),
    Sketcher.Constraint("Distance", 0, 25.0),
    Sketcher.Constraint("DistanceX", -1, 1, 1, 3, 12.679492),
    Sketcher.Constraint("DistanceY", 1, 3, -1, 1, 41.320508),
])
pocket12 = body.newObject("PartDesign::Pocket", "Pocket011")
pocket12.Profile = sketch21
pocket12.Type = "ThroughAll"
pocket12.Reversed = True

# Sketch on an angled plane
sketch22 = body.newObject("Sketcher::SketchObject", "Sketch021")
sketch22.Placement = App.Placement(V(46.062178, 0, -79.782032), App.Rotation(V(-0.866025404, 0, -0.5), V(0, 1, 0), V(0.5, 0, -0.866025404), "ZXY"))
sketch22.addGeometry([
    Part.LineSegment(V(-10, 10, 0), V(-10, 5, 0)),
    Part.LineSegment(V(-10, 5, 0), V(30, 5, 0)),
    Part.LineSegment(V(30, 5, 0), V(30, 10, 0)),
    Part.LineSegment(V(30, 10, 0), V(-10, 10, 0)),
], False)
sketch22.addConstraint([
    Sketcher.Constraint("Coincident", 0, 2, 1, 1),
    Sketcher.Constraint("Coincident", 1, 2, 2, 1),
    Sketcher.Constraint("Coincident", 2, 2, 3, 1),
    Sketcher.Constraint("Coincident", 3, 2, 0, 1),
    Sketcher.Constraint("Vertical", 0),
    Sketcher.Constraint("Horizontal", 1),
    Sketcher.Constraint("Vertical", 2),
    Sketcher.Constraint("Horizontal", 3),
    Sketcher.Constraint("DistanceX", 1, 1, 1, 2, 40.0),
    Sketcher.Constraint("DistanceY", 0, 2, 0, 1, 5.0),
    Sketcher.Constraint("DistanceY", -1, 1, 0, 2, 5.0),
    Sketcher.Constraint("DistanceX", 0, 2, -1, 1, 10.320508),
])
pad10 = body.newObject("PartDesign::Pad", "Pad009")
pad10.Profile = sketch22
pad10.Length = 10
doc.recompute()

fillet4 = body.newObject("PartDesign::Fillet", "Fillet003")
fillet4.Base = (pad10, edges_at(pad10, [
    (-20, -22, -12),
    (-20, -22, 12),
    (20, -22, 12),
    (20, -22, -12),
    (20, 7.5, -14),
    (-19.37, 7.5, -25.808),
    (25.359, 7.5, -103.282),
    (60, 7.5, -83.282),
]))
fillet4.Radius = 10

doc.recompute()
